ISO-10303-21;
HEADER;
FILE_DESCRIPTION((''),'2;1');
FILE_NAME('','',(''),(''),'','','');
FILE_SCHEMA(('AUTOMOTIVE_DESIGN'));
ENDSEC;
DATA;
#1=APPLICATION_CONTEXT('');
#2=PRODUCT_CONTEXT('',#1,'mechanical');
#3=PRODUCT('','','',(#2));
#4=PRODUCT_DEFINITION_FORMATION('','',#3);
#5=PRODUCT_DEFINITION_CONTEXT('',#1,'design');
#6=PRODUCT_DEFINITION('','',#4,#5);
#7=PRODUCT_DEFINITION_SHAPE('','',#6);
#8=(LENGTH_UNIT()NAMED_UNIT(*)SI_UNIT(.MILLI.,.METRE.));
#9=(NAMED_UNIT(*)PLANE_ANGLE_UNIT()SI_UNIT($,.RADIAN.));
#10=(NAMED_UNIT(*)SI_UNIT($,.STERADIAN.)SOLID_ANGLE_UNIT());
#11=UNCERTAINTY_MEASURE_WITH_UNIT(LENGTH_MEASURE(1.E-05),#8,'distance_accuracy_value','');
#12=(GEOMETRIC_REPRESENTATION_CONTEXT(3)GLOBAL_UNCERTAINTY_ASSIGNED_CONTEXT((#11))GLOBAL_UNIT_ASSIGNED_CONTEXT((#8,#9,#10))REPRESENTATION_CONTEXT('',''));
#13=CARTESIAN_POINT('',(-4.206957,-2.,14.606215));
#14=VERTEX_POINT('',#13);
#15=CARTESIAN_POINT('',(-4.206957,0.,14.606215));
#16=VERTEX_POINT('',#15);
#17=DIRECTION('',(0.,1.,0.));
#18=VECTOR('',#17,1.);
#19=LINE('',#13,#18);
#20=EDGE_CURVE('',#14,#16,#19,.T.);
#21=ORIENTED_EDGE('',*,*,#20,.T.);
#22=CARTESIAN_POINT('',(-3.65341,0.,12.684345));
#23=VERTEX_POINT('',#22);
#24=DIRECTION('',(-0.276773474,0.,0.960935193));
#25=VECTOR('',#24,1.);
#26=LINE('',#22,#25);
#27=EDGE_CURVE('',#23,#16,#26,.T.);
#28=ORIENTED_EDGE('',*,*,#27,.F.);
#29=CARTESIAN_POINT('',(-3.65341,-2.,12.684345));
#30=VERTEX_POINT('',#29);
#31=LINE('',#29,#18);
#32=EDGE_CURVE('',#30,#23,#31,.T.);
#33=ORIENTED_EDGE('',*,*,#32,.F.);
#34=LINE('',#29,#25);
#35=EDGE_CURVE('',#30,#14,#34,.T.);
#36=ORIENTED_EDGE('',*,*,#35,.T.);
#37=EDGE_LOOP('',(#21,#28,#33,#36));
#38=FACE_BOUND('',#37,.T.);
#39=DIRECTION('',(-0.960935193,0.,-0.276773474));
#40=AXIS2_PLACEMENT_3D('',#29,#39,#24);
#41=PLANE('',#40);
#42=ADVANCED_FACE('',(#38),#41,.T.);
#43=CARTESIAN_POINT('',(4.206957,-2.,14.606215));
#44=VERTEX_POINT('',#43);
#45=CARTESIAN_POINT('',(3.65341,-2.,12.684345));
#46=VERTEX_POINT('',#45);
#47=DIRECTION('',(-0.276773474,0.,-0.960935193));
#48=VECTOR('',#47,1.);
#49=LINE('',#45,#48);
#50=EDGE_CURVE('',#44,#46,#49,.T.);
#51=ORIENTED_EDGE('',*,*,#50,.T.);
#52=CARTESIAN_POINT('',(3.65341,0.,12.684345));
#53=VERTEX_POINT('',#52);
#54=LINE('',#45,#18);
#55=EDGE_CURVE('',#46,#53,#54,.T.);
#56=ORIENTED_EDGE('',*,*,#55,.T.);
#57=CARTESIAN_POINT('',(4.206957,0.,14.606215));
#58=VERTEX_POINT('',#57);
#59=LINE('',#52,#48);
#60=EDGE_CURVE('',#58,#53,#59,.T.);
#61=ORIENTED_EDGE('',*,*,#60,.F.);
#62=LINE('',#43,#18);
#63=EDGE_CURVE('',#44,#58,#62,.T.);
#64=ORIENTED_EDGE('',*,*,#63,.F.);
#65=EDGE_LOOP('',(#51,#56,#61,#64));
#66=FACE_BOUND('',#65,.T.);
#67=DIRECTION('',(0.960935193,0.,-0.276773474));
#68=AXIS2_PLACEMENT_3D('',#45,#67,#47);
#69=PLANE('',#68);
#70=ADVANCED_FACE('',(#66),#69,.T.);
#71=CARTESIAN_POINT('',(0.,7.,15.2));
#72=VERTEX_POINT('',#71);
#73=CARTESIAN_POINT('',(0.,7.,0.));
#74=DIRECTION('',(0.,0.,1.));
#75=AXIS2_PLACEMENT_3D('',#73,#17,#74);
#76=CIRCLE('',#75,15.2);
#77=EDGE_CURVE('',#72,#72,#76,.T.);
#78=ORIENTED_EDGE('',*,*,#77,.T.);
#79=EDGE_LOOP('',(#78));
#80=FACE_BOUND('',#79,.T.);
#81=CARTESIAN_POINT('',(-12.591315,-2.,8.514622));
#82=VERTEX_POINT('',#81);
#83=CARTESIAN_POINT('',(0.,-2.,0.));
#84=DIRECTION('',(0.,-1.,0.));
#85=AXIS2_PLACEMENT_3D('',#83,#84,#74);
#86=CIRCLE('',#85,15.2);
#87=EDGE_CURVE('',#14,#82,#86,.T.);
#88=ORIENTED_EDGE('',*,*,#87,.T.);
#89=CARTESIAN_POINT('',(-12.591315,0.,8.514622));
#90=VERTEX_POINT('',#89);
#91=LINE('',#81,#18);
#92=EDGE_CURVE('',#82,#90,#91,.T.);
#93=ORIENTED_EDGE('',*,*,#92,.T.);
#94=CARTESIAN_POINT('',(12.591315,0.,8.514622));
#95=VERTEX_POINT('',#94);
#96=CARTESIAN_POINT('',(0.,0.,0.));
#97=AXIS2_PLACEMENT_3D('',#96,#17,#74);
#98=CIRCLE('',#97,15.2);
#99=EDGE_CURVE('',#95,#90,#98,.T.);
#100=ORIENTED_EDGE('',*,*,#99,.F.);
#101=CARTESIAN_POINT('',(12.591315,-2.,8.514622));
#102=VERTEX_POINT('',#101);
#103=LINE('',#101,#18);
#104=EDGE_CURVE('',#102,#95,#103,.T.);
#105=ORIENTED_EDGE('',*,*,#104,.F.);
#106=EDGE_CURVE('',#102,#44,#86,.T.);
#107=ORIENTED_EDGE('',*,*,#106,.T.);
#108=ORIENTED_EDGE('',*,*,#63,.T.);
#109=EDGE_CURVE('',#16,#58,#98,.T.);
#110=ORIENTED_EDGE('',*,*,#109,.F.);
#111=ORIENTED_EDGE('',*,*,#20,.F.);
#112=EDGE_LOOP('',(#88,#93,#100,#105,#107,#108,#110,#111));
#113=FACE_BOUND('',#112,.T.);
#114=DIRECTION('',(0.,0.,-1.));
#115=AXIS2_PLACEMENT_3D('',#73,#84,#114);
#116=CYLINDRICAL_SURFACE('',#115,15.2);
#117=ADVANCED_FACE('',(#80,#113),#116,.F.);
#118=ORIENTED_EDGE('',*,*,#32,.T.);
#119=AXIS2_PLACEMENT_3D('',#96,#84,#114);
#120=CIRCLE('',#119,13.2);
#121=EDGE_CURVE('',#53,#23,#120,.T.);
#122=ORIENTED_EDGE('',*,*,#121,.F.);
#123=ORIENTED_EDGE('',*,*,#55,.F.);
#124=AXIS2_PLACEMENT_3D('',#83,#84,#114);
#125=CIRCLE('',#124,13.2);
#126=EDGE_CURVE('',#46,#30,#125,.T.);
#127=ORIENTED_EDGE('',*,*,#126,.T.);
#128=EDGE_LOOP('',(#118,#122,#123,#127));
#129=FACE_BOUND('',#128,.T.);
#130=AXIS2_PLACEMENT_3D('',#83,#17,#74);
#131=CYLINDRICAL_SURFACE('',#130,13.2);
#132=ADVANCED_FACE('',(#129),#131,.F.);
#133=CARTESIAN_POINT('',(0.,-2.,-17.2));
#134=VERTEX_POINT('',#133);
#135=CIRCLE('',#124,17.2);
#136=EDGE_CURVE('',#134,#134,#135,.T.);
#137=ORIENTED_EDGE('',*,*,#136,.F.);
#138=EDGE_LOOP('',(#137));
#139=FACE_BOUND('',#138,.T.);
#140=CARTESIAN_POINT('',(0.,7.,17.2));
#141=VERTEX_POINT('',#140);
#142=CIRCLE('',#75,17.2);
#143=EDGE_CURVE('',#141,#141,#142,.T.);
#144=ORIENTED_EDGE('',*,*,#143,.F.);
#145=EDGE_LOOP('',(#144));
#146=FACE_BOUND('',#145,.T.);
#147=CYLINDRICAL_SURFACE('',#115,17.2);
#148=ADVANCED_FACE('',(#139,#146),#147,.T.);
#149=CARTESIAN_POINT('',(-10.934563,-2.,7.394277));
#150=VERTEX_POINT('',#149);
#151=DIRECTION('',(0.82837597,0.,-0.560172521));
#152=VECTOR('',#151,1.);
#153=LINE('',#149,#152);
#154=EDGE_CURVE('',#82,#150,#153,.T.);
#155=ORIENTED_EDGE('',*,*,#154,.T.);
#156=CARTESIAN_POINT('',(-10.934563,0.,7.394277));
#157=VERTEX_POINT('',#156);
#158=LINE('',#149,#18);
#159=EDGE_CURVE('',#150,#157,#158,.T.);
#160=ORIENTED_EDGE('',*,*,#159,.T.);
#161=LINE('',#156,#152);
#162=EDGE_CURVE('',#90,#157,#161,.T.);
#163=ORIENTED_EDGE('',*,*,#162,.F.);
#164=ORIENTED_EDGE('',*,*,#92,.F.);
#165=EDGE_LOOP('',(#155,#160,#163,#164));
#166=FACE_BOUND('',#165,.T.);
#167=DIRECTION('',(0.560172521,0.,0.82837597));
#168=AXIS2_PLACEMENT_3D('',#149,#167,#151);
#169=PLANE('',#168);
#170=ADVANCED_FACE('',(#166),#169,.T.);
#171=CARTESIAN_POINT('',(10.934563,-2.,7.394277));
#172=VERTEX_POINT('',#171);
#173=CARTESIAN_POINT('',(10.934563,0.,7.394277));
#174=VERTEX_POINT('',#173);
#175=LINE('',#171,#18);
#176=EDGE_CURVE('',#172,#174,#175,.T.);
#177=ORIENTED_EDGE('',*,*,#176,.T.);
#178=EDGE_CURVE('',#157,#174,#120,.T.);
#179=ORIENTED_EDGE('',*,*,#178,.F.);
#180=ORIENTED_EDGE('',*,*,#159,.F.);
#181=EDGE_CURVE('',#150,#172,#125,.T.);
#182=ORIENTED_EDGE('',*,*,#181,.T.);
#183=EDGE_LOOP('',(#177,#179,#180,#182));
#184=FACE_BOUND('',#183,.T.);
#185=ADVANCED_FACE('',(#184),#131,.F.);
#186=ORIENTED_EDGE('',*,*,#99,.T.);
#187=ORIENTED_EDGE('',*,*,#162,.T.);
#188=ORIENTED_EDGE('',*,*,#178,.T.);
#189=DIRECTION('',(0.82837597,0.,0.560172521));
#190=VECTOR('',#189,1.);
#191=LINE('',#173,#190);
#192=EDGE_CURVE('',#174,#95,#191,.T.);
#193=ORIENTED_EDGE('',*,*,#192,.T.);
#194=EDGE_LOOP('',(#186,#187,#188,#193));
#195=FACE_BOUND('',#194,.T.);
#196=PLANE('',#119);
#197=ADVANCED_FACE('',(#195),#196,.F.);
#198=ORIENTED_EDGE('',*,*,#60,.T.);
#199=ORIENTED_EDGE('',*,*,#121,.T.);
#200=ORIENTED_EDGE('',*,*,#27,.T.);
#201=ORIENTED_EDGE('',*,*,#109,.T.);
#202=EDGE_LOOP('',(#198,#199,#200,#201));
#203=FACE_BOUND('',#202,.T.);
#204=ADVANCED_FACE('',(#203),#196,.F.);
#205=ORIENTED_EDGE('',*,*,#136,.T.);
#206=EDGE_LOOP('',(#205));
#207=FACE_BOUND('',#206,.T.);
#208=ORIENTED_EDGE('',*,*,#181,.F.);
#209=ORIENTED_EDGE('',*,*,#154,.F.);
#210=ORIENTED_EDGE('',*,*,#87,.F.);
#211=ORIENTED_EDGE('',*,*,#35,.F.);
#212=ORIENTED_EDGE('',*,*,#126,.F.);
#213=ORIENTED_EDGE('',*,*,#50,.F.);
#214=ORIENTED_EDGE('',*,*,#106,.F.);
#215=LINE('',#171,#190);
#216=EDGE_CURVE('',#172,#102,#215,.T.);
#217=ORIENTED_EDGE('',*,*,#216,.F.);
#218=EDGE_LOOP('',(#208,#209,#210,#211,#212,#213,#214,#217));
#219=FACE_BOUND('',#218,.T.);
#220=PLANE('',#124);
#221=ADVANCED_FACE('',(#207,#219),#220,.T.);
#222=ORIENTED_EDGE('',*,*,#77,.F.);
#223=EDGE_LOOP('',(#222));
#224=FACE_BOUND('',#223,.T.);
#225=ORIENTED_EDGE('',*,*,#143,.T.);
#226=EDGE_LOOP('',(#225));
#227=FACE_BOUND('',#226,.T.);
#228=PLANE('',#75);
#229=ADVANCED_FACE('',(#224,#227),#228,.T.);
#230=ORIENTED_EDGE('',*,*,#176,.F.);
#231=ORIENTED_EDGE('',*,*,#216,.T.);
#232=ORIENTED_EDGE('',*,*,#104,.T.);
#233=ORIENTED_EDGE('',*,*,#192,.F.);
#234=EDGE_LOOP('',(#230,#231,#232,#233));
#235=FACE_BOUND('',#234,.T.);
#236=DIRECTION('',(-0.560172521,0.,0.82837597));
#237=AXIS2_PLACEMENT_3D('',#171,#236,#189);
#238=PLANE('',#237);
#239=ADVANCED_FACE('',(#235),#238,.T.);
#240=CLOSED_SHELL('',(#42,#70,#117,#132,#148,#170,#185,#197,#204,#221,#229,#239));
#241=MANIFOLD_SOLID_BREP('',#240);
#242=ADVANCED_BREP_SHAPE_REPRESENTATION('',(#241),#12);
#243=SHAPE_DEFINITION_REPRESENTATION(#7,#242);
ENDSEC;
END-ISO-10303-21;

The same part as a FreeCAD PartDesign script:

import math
import FreeCAD as App
import Part
import Sketcher
from FreeCAD import Vector
Q = App.Units.Quantity

doc = App.newDocument("Part")
params = doc.addObject("Spreadsheet::Sheet", "Params")
for row, (alias, value) in enumerate([
    ("sketch1_diameter", "34.4 mm"),
    ("sketch1_diameter2", "30.4 mm"),
    ("pad1_length", "7 mm"),
    ("sketch2_diameter", "34.4 mm"),
    ("sketch2_radius", "13.2 mm"),
    ("sketch2_radius2", "15.2 mm"),
    ("pad2_length", "2 mm"),
], start=1):
    params.set(f"A{row}", alias)
    params.set(f"B{row}", "=" + value)
    params.setAlias(f"B{row}", alias)

body = doc.addObject("PartDesign::Body", "Body")

# Sketch on XZ plane
sketch1 = doc.addObject("Sketcher::SketchObject", "Sketch")
body.addObject(sketch1)
sketch1.AttachmentSupport = (doc.XZ_Plane, [""])
sketch1.MapMode = "FlatFace"
sketch1.addGeometry(Part.Circle(Vector(0, 0, 0), Vector(0, 0, 1), 17), False)
sketch1.addGeometry(Part.Circle(Vector(0, 0, 0), Vector(0, 0, 1), 15), False)
sketch1.addConstraint(Sketcher.Constraint("Coincident", 0, 3, -1, 1))
sketch1.addConstraint(Sketcher.Constraint("Coincident", 1, 3, -1, 1))
sketch1.addConstraint(Sketcher.Constraint("Diameter", 0, Q("34.4 mm")))
sketch1.addConstraint(Sketcher.Constraint("Diameter", 1, Q("30.4 mm")))
sketch1.setExpression("Constraints[2]", "Params.sketch1_diameter")
sketch1.setExpression("Constraints[3]", "Params.sketch1_diameter2")
pad1 = doc.addObject("PartDesign::Pad", "Pad")
body.addObject(pad1)
pad1.Profile = sketch1
pad1.setExpression("Length", "Params.pad1_length")
pad1.Reversed = True

# Sketch on XZ plane
sketch2 = doc.addObject("Sketcher::SketchObject", "Sketch001")
body.addObject(sketch2)
sketch2.AttachmentSupport = (doc.XZ_Plane, [""])
sketch2.MapMode = "FlatFace"
sketch2.addGeometry(Part.Circle(Vector(0, 0, 0), Vector(0, 0, 1), 17.2), False)
sketch2.addGeometry(Part.ArcOfCircle(Part.Circle(Vector(0, 0, 0), Vector(0, 0, 1), 13.2), math.radians(146), math.radians(394)), False)
sketch2.addGeometry(Part.LineSegment(Vector(-10.9, 7.4, 0), Vector(-12.6, 8.5, 0)), False)
sketch2.addGeometry(Part.ArcOfCircle(Part.Circle(Vector(0, 0, 0), Vector(0, 0, 1), 15.2), math.radians(106), math.radians(146)), False)
sketch2.addGeometry(Part.LineSegment(Vector(-4.2, 14.6, 0), Vector(-3.7, 12.7, 0)), False)
sketch2.addGeometry(Part.ArcOfCircle(Part.Circle(Vector(0, 0, 0), Vector(0, 0, 1), 13.2), math.radians(74), math.radians(106)), False)
sketch2.addGeometry(Part.LineSegment(Vector(3.7, 12.7, 0), Vector(4.2, 14.6, 0)), False)
sketch2.addGeometry(Part.ArcOfCircle(Part.Circle(Vector(0, 0, 0), Vector(0, 0, 1), 15.2), math.radians(34), math.radians(74)), False)
sketch2.addGeometry(Part.LineSegment(Vector(12.6, 8.5, 0), Vector(10.9, 7.4, 0)), False)
sketch2.addConstraint(Sketcher.Constraint("Coincident", 1, 1, 2, 1))
sketch2.addConstraint(Sketcher.Constraint("Coincident", 2, 2, 3, 2))
sketch2.addConstraint(Sketcher.Constraint("Coincident", 3, 1, 4, 1))
sketch2.addConstraint(Sketcher.Constraint("Coincident", 4, 2, 5, 2))
sketch2.addConstraint(Sketcher.Constraint("Coincident", 5, 1, 6, 1))
sketch2.addConstraint(Sketcher.Constraint("Coincident", 6, 2, 7, 2))
sketch2.addConstraint(Sketcher.Constraint("Coincident", 7, 1, 8, 1))
sketch2.addConstraint(Sketcher.Constraint("Coincident", 8, 2, 1, 2))
sketch2.addConstraint(Sketcher.Constraint("Coincident", 0, 3, -1, 1))
sketch2.addConstraint(Sketcher.Constraint("Coincident", 1, 3, -1, 1))
sketch2.addConstraint(Sketcher.Constraint("Coincident", 3, 3, -1, 1))
sketch2.addConstraint(Sketcher.Constraint("Coincident", 5, 3, -1, 1))
sketch2.addConstraint(Sketcher.Constraint("Coincident", 7, 3, -1, 1))
sketch2.addConstraint(Sketcher.Constraint("Equal", 1, 5))
sketch2.addConstraint(Sketcher.Constraint("Equal", 3, 7))
sketch2.addConstraint(Sketcher.Constraint("Horizontal", 4, 2, 5, 1))
sketch2.addConstraint(Sketcher.Constraint("Horizontal", 3, 1, 6, 2))
sketch2.addConstraint(Sketcher.Constraint("Horizontal", 2, 2, 7, 1))
sketch2.addConstraint(Sketcher.Constraint("Horizontal", 1, 1, 8, 2))
sketch2.addConstraint(Sketcher.Constraint("Diameter", 0, Q("34.4 mm")))
sketch2.addConstraint(Sketcher.Constraint("Radius", 1, Q("13.2 mm")))
sketch2.addConstraint(Sketcher.Constraint("Radius", 3, Q("15.2 mm")))
sketch2.addConstraint(Sketcher.Constraint("DistanceX", 4, 2, -1, 1, Q("3.65341 mm")))
sketch2.addConstraint(Sketcher.Constraint("DistanceX", 2, 2, 1, 1, Q("1.656752 mm")))
sketch2.addConstraint(Sketcher.Constraint("DistanceY", 4, 2, 3, 1, Q("1.92187 mm")))
sketch2.addConstraint(Sketcher.Constraint("DistanceX", 1, 1, -1, 1, Q("10.934563 mm")))
sketch2.setExpression("Constraints[19]", "Params.sketch2_diameter")
sketch2.setExpression("Constraints[20]", "Params.sketch2_radius")
sketch2.setExpression("Constraints[21]", "Params.sketch2_radius2")
pad2 = doc.addObject("PartDesign::Pad", "Pad001")
body.addObject(pad2)
pad2.Profile = sketch2
pad2.setExpression("Length", "Params.pad2_length")

doc.recompute()
